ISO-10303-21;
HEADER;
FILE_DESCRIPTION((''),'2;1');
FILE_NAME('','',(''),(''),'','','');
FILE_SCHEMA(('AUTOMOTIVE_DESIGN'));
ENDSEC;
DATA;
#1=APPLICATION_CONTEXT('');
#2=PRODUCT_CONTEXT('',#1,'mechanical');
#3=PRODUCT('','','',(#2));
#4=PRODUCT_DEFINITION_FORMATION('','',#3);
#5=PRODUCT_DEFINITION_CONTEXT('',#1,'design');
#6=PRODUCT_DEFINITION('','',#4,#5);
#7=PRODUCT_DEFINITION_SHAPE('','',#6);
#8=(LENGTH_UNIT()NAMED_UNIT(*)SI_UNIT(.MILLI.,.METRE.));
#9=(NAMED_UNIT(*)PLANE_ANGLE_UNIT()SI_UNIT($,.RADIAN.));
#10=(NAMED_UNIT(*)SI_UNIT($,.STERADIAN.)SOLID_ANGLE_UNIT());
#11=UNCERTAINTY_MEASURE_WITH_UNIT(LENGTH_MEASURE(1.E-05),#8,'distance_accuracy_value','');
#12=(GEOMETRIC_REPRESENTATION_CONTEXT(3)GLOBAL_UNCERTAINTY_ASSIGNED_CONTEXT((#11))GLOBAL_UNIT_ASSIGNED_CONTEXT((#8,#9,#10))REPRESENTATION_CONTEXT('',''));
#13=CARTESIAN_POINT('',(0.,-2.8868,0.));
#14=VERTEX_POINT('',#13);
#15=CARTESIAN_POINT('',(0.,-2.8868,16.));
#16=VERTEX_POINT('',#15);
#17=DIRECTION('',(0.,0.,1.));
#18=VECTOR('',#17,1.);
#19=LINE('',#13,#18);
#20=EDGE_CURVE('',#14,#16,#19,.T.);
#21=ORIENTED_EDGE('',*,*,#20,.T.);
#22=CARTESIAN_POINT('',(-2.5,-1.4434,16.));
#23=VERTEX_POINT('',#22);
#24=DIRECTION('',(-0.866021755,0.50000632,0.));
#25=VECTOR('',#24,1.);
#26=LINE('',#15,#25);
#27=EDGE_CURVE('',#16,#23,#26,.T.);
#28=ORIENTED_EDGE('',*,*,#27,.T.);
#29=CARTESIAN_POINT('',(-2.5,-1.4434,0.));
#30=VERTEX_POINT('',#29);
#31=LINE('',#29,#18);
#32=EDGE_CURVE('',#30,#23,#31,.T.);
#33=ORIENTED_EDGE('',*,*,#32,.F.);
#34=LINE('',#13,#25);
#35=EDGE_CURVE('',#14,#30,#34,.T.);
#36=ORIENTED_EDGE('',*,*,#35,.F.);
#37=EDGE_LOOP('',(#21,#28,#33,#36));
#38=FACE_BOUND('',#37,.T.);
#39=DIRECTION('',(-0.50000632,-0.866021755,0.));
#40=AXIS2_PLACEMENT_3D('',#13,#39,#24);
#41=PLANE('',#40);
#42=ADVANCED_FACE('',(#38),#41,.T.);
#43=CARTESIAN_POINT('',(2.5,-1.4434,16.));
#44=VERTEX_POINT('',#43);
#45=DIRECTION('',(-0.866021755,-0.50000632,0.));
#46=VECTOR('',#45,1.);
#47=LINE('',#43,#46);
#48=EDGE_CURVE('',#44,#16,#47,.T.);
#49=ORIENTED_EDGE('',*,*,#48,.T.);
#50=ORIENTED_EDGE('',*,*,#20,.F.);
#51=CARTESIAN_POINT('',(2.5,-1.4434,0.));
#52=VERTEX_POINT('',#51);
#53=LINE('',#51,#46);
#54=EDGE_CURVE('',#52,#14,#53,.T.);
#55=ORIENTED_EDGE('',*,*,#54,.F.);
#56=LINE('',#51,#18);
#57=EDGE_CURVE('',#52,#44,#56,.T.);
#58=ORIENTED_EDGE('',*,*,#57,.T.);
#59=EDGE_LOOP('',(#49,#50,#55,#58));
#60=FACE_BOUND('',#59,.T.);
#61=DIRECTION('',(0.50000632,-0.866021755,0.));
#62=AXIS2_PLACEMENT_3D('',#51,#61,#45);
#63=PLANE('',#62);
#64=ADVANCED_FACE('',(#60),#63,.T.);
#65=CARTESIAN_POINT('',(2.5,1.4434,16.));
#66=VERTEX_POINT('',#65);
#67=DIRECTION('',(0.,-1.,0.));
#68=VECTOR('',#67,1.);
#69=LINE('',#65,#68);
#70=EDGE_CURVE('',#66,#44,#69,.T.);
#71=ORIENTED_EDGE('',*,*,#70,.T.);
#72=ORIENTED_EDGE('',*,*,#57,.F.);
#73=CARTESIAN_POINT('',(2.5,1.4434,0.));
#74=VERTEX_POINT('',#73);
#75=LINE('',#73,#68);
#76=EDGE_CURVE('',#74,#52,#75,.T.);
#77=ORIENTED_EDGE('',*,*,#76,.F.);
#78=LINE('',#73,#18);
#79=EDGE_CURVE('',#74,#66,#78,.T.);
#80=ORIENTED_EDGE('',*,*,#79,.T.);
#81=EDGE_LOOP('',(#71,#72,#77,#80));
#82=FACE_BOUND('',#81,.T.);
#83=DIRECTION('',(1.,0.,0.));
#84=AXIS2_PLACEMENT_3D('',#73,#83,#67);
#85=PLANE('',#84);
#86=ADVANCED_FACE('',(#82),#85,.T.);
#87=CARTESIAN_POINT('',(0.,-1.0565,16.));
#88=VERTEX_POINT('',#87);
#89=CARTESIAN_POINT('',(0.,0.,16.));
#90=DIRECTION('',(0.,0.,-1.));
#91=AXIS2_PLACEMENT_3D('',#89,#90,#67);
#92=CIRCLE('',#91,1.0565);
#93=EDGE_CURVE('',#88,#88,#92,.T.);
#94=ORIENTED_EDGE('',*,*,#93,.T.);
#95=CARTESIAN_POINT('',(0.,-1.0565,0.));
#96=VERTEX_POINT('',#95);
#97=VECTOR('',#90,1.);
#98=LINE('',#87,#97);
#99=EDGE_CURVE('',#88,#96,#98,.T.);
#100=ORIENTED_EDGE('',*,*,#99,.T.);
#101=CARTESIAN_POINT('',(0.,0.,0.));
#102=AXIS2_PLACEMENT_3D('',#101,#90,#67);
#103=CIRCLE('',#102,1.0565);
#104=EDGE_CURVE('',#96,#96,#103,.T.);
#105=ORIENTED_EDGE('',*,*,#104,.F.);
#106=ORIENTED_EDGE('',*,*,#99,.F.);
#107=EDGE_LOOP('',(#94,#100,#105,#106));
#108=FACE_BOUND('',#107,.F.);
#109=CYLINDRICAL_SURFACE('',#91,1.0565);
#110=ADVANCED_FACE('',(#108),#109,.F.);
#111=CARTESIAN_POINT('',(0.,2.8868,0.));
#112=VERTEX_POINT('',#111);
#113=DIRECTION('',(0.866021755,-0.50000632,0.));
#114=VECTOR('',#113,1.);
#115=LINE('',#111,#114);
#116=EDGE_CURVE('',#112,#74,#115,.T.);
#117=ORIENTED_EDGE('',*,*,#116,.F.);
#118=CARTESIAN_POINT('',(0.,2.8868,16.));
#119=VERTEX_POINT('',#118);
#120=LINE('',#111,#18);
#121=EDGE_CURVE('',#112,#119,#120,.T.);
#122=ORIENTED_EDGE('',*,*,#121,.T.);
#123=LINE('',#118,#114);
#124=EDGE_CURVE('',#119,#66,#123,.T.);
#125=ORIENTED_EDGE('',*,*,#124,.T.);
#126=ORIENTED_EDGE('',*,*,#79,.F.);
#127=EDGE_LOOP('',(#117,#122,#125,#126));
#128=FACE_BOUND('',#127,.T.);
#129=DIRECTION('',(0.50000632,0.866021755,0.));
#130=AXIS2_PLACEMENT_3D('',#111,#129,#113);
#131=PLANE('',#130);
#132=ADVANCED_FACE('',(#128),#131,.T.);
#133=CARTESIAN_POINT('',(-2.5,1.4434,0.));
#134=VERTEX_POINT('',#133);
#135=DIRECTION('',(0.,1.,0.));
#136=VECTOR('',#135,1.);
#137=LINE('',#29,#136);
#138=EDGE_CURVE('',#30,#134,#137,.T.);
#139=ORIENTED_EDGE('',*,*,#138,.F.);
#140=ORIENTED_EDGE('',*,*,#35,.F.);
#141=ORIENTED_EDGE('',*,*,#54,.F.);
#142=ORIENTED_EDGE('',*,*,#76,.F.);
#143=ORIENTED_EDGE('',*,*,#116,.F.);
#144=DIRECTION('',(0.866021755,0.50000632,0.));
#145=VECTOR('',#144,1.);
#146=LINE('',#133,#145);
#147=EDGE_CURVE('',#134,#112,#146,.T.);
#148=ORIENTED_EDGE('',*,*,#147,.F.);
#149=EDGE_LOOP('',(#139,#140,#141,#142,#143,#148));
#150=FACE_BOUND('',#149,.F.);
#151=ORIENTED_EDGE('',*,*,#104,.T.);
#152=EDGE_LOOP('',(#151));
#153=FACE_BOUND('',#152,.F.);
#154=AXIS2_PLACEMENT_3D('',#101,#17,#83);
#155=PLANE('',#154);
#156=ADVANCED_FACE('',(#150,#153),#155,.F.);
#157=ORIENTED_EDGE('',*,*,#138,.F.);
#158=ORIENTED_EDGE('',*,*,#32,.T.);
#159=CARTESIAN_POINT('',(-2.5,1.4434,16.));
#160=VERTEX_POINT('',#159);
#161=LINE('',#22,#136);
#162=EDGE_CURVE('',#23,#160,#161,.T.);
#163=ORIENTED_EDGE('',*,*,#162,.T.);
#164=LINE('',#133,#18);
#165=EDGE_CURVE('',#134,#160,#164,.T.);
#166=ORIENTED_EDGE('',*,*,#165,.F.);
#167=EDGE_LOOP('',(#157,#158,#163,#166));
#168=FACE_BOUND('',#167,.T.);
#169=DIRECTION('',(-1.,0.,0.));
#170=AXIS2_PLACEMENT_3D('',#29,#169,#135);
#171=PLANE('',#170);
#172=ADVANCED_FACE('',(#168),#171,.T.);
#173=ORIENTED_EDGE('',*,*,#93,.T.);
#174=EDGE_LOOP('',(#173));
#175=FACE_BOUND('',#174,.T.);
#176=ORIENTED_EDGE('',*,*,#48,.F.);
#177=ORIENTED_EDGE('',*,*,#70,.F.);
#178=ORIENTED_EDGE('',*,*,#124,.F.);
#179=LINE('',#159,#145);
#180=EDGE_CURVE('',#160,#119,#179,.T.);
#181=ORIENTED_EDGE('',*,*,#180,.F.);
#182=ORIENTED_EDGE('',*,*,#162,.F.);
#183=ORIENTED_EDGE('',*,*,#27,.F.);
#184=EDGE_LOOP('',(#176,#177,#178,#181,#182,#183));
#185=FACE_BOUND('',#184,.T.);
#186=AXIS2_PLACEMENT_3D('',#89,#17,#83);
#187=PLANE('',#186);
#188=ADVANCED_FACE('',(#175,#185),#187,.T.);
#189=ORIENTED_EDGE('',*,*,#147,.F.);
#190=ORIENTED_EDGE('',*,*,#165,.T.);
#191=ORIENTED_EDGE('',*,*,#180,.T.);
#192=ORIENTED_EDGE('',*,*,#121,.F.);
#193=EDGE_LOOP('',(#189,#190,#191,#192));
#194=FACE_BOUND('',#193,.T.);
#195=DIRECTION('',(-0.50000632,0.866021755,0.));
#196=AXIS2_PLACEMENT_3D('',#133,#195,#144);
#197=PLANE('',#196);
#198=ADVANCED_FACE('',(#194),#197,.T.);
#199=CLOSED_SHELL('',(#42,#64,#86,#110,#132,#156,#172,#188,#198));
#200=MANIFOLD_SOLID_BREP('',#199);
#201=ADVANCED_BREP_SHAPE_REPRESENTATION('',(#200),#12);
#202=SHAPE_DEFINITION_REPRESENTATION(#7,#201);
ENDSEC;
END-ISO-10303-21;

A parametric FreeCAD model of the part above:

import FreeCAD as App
import Part
import Sketcher

V = App.Vector
Q = App.Units.Quantity


def add_polygon(sketch, points):
    """Adds a closed chain of lines whose ends are joined by coincident constraints."""
    first, n = sketch.GeometryCount, len(points)
    for a, b in zip(points, points[1:] + points[:1]):
        sketch.addGeometry(Part.LineSegment(App.Vector(*a, 0), App.Vector(*b, 0)), False)
    for i in range(n):
        sketch.addConstraint(Sketcher.Constraint("Coincident", first + i, 2, first + (i + 1) % n, 1))

doc = App.newDocument("Part")
body = doc.addObject("PartDesign::Body", "Body")

sketch1 = doc.addObject("Sketcher::SketchObject", "Sketch")
body.addObject(sketch1)
sketch1.AttachmentSupport = (doc.XY_Plane, [""])
sketch1.MapMode = "FlatFace"
add_polygon(sketch1, [(2.5, 1.4), (0, 2.9), (-2.5, 1.4), (-2.5, -1.4), (0, -2.9), (2.5, -1.4)])
sketch1.addConstraint([
    Sketcher.Constraint("Vertical", 2),
    Sketcher.Constraint("Vertical", 5),
    Sketcher.Constraint("Symmetric", 0, 2, 3, 2, -1, 1),
    Sketcher.Constraint("Symmetric", 1, 2, 4, 2, -1, 1),
    Sketcher.Constraint("PointOnObject", 0, 2, -2),
    Sketcher.Constraint("Parallel", 0, 3),
    Sketcher.Constraint("Horizontal", 2, 2, 4, 2),
    Sketcher.Constraint("DistanceX", 2, 2, 4, 2, 5.0),
    Sketcher.Constraint("Angle", 0, Q("149.9996 deg")),
    Sketcher.Constraint("DistanceY", 2, 2, 2, 1, 2.8868),
])
pad1 = doc.addObject("PartDesign::Pad", "Pad")
body.addObject(pad1)
pad1.Profile = sketch1
pad1.Length = 16

sketch2 = doc.addObject("Sketcher::SketchObject", "Sketch001")
body.addObject(sketch2)
sketch2.AttachmentSupport = (doc.XY_Plane, [""])
sketch2.MapMode = "FlatFace"
sketch2.AttachmentOffset = App.Placement(V(0, 0, 16), App.Rotation())
sketch2.addGeometry(Part.Circle(V(0, 0, 0), V(0, 0, 1), 1.1), False)
sketch2.addConstraint([
    Sketcher.Constraint("Coincident", 0, 3, -1, 1),
    Sketcher.Constraint("Diameter", 0, 2.113),
])
doc.recompute()
hole = doc.addObject("PartDesign::Hole", "Hole")
body.addObject(hole)
hole.Profile = sketch2
hole.ThreadType = "None"
hole.Diameter = 2.113
hole.DepthType = "ThroughAll"

doc.recompute()
